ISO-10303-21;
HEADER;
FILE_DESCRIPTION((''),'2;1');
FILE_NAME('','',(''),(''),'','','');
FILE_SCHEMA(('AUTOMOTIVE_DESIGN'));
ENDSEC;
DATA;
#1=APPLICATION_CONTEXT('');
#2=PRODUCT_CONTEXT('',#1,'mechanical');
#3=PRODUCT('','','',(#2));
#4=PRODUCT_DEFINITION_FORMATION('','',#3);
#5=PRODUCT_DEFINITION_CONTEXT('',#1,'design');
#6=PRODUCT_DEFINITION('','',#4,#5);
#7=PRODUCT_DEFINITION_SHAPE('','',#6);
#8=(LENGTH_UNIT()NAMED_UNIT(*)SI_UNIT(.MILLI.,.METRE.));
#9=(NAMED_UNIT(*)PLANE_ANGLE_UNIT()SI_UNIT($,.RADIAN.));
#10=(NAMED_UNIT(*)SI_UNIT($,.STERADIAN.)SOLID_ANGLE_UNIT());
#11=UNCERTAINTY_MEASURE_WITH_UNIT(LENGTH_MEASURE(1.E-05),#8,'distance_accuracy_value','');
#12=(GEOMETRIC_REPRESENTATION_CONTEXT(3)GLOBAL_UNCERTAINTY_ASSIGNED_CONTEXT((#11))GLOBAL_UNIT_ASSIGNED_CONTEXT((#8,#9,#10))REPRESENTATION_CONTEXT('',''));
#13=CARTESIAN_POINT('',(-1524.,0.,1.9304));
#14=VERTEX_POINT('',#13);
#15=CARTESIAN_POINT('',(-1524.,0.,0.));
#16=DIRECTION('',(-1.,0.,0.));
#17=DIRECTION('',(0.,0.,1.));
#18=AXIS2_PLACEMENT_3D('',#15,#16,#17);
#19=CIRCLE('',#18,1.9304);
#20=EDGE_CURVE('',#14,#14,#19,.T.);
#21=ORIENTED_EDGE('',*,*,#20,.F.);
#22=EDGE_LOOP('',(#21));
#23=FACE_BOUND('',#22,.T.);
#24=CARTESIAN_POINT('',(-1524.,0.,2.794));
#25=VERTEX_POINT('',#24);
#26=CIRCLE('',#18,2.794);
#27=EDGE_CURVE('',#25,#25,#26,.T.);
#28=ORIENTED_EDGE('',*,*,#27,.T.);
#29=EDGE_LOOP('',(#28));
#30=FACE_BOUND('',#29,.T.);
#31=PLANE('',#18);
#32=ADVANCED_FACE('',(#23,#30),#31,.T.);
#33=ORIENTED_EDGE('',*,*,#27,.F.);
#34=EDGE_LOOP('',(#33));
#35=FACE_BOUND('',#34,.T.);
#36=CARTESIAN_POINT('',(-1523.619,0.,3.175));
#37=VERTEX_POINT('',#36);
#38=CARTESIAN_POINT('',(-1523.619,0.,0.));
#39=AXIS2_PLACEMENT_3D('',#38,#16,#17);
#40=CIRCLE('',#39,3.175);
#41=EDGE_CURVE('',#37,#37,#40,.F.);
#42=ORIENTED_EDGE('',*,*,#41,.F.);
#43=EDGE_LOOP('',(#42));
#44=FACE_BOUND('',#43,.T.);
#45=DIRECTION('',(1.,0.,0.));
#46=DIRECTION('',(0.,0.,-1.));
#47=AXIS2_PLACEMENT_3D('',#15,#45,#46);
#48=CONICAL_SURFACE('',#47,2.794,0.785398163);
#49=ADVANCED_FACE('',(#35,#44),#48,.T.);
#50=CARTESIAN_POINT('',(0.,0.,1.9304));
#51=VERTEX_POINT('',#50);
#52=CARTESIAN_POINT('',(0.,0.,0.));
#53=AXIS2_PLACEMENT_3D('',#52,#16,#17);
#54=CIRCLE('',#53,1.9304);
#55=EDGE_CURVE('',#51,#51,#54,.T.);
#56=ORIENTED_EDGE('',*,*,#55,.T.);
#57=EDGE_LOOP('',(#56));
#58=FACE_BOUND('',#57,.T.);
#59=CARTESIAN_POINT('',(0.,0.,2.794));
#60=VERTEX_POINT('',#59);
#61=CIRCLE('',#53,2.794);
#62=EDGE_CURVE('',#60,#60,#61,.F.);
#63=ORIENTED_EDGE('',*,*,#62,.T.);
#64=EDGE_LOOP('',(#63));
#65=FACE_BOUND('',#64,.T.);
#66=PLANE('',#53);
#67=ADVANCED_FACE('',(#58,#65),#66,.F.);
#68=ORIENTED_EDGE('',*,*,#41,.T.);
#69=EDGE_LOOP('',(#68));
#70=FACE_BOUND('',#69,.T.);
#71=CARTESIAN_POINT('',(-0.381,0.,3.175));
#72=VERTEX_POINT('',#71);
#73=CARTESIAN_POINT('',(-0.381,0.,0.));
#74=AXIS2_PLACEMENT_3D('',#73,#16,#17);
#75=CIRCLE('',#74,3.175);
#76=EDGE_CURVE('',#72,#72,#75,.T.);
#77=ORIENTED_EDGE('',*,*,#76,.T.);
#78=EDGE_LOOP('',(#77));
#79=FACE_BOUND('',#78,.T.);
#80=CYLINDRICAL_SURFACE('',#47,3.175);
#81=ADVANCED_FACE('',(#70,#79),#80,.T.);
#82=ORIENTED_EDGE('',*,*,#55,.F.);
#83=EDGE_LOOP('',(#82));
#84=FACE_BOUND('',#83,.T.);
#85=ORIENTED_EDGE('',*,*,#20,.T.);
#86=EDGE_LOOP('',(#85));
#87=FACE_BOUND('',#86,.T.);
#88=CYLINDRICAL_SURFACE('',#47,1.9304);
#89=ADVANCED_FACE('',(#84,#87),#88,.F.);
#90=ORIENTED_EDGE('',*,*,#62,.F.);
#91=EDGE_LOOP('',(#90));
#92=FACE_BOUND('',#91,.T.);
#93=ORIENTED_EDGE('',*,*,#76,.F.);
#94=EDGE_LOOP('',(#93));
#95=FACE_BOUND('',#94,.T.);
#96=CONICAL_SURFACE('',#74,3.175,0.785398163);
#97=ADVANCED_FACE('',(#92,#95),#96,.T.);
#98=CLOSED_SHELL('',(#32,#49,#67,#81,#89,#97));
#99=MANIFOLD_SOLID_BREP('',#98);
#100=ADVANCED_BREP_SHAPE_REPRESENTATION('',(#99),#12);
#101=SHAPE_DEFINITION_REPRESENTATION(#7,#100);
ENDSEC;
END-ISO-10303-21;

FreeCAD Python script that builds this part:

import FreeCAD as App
import Part
import Sketcher
from FreeCAD import Vector
Q = App.Units.Quantity


def edges_at(feature, points):
    """Names of the edges that pass closest to the given points."""
    edges = feature.Shape.Edges
    near = lambda p: min(range(len(edges)), key=lambda i: edges[i].distToShape(Part.Vertex(*p))[0])
    return sorted({f"Edge{near(p) + 1}" for p in points})

doc = App.newDocument("Part")
params = doc.addObject("Spreadsheet::Sheet", "Params")
for row, (alias, value) in enumerate([
    ("sketch1_diameter", "0.25 in"),
    ("sketch1_diameter2", "0.152 in"),
    ("pad1_length", "60 in"),
    ("chamfer_size", "0.015 in"),
], start=1):
    params.set(f"A{row}", alias)
    params.set(f"B{row}", "=" + value)
    params.setAlias(f"B{row}", alias)

body = doc.addObject("PartDesign::Body", "Body")

# Sketch on YZ plane
sketch1 = body.newObject("Sketcher::SketchObject", "Sketch")
sketch1.AttachmentSupport = (doc.getObject("YZ_Plane"), [""])
sketch1.MapMode = "FlatFace"
sketch1.addGeometry([
    Part.Circle(Vector(0, 0, 0), Vector(0, 0, 1), 3.175),
    Part.Circle(Vector(0, 0, 0), Vector(0, 0, 1), 1.9304),
], False)
sketch1.addConstraint([
    Sketcher.Constraint("Coincident", 0, 3, -1, 1),
    Sketcher.Constraint("Coincident", 1, 3, -1, 1),
    Sketcher.Constraint("Diameter", 0, Q("0.25 in")),
    Sketcher.Constraint("Diameter", 1, Q("0.152 in")),
])
sketch1.setExpression("Constraints[2]", "Params.sketch1_diameter")
sketch1.setExpression("Constraints[3]", "Params.sketch1_diameter2")
pad1 = body.newObject("PartDesign::Pad", "Pad")
pad1.Profile = sketch1
pad1.setExpression("Length", "Params.pad1_length")
pad1.Reversed = True
doc.recompute()

chamfer = body.newObject("PartDesign::Chamfer", "Chamfer")
chamfer.Base = (pad1, edges_at(pad1, [(0, 0, -3.175), (-1524, 0, -3.175)]))
chamfer.setExpression("Size", "Params.chamfer_size")

doc.recompute()
